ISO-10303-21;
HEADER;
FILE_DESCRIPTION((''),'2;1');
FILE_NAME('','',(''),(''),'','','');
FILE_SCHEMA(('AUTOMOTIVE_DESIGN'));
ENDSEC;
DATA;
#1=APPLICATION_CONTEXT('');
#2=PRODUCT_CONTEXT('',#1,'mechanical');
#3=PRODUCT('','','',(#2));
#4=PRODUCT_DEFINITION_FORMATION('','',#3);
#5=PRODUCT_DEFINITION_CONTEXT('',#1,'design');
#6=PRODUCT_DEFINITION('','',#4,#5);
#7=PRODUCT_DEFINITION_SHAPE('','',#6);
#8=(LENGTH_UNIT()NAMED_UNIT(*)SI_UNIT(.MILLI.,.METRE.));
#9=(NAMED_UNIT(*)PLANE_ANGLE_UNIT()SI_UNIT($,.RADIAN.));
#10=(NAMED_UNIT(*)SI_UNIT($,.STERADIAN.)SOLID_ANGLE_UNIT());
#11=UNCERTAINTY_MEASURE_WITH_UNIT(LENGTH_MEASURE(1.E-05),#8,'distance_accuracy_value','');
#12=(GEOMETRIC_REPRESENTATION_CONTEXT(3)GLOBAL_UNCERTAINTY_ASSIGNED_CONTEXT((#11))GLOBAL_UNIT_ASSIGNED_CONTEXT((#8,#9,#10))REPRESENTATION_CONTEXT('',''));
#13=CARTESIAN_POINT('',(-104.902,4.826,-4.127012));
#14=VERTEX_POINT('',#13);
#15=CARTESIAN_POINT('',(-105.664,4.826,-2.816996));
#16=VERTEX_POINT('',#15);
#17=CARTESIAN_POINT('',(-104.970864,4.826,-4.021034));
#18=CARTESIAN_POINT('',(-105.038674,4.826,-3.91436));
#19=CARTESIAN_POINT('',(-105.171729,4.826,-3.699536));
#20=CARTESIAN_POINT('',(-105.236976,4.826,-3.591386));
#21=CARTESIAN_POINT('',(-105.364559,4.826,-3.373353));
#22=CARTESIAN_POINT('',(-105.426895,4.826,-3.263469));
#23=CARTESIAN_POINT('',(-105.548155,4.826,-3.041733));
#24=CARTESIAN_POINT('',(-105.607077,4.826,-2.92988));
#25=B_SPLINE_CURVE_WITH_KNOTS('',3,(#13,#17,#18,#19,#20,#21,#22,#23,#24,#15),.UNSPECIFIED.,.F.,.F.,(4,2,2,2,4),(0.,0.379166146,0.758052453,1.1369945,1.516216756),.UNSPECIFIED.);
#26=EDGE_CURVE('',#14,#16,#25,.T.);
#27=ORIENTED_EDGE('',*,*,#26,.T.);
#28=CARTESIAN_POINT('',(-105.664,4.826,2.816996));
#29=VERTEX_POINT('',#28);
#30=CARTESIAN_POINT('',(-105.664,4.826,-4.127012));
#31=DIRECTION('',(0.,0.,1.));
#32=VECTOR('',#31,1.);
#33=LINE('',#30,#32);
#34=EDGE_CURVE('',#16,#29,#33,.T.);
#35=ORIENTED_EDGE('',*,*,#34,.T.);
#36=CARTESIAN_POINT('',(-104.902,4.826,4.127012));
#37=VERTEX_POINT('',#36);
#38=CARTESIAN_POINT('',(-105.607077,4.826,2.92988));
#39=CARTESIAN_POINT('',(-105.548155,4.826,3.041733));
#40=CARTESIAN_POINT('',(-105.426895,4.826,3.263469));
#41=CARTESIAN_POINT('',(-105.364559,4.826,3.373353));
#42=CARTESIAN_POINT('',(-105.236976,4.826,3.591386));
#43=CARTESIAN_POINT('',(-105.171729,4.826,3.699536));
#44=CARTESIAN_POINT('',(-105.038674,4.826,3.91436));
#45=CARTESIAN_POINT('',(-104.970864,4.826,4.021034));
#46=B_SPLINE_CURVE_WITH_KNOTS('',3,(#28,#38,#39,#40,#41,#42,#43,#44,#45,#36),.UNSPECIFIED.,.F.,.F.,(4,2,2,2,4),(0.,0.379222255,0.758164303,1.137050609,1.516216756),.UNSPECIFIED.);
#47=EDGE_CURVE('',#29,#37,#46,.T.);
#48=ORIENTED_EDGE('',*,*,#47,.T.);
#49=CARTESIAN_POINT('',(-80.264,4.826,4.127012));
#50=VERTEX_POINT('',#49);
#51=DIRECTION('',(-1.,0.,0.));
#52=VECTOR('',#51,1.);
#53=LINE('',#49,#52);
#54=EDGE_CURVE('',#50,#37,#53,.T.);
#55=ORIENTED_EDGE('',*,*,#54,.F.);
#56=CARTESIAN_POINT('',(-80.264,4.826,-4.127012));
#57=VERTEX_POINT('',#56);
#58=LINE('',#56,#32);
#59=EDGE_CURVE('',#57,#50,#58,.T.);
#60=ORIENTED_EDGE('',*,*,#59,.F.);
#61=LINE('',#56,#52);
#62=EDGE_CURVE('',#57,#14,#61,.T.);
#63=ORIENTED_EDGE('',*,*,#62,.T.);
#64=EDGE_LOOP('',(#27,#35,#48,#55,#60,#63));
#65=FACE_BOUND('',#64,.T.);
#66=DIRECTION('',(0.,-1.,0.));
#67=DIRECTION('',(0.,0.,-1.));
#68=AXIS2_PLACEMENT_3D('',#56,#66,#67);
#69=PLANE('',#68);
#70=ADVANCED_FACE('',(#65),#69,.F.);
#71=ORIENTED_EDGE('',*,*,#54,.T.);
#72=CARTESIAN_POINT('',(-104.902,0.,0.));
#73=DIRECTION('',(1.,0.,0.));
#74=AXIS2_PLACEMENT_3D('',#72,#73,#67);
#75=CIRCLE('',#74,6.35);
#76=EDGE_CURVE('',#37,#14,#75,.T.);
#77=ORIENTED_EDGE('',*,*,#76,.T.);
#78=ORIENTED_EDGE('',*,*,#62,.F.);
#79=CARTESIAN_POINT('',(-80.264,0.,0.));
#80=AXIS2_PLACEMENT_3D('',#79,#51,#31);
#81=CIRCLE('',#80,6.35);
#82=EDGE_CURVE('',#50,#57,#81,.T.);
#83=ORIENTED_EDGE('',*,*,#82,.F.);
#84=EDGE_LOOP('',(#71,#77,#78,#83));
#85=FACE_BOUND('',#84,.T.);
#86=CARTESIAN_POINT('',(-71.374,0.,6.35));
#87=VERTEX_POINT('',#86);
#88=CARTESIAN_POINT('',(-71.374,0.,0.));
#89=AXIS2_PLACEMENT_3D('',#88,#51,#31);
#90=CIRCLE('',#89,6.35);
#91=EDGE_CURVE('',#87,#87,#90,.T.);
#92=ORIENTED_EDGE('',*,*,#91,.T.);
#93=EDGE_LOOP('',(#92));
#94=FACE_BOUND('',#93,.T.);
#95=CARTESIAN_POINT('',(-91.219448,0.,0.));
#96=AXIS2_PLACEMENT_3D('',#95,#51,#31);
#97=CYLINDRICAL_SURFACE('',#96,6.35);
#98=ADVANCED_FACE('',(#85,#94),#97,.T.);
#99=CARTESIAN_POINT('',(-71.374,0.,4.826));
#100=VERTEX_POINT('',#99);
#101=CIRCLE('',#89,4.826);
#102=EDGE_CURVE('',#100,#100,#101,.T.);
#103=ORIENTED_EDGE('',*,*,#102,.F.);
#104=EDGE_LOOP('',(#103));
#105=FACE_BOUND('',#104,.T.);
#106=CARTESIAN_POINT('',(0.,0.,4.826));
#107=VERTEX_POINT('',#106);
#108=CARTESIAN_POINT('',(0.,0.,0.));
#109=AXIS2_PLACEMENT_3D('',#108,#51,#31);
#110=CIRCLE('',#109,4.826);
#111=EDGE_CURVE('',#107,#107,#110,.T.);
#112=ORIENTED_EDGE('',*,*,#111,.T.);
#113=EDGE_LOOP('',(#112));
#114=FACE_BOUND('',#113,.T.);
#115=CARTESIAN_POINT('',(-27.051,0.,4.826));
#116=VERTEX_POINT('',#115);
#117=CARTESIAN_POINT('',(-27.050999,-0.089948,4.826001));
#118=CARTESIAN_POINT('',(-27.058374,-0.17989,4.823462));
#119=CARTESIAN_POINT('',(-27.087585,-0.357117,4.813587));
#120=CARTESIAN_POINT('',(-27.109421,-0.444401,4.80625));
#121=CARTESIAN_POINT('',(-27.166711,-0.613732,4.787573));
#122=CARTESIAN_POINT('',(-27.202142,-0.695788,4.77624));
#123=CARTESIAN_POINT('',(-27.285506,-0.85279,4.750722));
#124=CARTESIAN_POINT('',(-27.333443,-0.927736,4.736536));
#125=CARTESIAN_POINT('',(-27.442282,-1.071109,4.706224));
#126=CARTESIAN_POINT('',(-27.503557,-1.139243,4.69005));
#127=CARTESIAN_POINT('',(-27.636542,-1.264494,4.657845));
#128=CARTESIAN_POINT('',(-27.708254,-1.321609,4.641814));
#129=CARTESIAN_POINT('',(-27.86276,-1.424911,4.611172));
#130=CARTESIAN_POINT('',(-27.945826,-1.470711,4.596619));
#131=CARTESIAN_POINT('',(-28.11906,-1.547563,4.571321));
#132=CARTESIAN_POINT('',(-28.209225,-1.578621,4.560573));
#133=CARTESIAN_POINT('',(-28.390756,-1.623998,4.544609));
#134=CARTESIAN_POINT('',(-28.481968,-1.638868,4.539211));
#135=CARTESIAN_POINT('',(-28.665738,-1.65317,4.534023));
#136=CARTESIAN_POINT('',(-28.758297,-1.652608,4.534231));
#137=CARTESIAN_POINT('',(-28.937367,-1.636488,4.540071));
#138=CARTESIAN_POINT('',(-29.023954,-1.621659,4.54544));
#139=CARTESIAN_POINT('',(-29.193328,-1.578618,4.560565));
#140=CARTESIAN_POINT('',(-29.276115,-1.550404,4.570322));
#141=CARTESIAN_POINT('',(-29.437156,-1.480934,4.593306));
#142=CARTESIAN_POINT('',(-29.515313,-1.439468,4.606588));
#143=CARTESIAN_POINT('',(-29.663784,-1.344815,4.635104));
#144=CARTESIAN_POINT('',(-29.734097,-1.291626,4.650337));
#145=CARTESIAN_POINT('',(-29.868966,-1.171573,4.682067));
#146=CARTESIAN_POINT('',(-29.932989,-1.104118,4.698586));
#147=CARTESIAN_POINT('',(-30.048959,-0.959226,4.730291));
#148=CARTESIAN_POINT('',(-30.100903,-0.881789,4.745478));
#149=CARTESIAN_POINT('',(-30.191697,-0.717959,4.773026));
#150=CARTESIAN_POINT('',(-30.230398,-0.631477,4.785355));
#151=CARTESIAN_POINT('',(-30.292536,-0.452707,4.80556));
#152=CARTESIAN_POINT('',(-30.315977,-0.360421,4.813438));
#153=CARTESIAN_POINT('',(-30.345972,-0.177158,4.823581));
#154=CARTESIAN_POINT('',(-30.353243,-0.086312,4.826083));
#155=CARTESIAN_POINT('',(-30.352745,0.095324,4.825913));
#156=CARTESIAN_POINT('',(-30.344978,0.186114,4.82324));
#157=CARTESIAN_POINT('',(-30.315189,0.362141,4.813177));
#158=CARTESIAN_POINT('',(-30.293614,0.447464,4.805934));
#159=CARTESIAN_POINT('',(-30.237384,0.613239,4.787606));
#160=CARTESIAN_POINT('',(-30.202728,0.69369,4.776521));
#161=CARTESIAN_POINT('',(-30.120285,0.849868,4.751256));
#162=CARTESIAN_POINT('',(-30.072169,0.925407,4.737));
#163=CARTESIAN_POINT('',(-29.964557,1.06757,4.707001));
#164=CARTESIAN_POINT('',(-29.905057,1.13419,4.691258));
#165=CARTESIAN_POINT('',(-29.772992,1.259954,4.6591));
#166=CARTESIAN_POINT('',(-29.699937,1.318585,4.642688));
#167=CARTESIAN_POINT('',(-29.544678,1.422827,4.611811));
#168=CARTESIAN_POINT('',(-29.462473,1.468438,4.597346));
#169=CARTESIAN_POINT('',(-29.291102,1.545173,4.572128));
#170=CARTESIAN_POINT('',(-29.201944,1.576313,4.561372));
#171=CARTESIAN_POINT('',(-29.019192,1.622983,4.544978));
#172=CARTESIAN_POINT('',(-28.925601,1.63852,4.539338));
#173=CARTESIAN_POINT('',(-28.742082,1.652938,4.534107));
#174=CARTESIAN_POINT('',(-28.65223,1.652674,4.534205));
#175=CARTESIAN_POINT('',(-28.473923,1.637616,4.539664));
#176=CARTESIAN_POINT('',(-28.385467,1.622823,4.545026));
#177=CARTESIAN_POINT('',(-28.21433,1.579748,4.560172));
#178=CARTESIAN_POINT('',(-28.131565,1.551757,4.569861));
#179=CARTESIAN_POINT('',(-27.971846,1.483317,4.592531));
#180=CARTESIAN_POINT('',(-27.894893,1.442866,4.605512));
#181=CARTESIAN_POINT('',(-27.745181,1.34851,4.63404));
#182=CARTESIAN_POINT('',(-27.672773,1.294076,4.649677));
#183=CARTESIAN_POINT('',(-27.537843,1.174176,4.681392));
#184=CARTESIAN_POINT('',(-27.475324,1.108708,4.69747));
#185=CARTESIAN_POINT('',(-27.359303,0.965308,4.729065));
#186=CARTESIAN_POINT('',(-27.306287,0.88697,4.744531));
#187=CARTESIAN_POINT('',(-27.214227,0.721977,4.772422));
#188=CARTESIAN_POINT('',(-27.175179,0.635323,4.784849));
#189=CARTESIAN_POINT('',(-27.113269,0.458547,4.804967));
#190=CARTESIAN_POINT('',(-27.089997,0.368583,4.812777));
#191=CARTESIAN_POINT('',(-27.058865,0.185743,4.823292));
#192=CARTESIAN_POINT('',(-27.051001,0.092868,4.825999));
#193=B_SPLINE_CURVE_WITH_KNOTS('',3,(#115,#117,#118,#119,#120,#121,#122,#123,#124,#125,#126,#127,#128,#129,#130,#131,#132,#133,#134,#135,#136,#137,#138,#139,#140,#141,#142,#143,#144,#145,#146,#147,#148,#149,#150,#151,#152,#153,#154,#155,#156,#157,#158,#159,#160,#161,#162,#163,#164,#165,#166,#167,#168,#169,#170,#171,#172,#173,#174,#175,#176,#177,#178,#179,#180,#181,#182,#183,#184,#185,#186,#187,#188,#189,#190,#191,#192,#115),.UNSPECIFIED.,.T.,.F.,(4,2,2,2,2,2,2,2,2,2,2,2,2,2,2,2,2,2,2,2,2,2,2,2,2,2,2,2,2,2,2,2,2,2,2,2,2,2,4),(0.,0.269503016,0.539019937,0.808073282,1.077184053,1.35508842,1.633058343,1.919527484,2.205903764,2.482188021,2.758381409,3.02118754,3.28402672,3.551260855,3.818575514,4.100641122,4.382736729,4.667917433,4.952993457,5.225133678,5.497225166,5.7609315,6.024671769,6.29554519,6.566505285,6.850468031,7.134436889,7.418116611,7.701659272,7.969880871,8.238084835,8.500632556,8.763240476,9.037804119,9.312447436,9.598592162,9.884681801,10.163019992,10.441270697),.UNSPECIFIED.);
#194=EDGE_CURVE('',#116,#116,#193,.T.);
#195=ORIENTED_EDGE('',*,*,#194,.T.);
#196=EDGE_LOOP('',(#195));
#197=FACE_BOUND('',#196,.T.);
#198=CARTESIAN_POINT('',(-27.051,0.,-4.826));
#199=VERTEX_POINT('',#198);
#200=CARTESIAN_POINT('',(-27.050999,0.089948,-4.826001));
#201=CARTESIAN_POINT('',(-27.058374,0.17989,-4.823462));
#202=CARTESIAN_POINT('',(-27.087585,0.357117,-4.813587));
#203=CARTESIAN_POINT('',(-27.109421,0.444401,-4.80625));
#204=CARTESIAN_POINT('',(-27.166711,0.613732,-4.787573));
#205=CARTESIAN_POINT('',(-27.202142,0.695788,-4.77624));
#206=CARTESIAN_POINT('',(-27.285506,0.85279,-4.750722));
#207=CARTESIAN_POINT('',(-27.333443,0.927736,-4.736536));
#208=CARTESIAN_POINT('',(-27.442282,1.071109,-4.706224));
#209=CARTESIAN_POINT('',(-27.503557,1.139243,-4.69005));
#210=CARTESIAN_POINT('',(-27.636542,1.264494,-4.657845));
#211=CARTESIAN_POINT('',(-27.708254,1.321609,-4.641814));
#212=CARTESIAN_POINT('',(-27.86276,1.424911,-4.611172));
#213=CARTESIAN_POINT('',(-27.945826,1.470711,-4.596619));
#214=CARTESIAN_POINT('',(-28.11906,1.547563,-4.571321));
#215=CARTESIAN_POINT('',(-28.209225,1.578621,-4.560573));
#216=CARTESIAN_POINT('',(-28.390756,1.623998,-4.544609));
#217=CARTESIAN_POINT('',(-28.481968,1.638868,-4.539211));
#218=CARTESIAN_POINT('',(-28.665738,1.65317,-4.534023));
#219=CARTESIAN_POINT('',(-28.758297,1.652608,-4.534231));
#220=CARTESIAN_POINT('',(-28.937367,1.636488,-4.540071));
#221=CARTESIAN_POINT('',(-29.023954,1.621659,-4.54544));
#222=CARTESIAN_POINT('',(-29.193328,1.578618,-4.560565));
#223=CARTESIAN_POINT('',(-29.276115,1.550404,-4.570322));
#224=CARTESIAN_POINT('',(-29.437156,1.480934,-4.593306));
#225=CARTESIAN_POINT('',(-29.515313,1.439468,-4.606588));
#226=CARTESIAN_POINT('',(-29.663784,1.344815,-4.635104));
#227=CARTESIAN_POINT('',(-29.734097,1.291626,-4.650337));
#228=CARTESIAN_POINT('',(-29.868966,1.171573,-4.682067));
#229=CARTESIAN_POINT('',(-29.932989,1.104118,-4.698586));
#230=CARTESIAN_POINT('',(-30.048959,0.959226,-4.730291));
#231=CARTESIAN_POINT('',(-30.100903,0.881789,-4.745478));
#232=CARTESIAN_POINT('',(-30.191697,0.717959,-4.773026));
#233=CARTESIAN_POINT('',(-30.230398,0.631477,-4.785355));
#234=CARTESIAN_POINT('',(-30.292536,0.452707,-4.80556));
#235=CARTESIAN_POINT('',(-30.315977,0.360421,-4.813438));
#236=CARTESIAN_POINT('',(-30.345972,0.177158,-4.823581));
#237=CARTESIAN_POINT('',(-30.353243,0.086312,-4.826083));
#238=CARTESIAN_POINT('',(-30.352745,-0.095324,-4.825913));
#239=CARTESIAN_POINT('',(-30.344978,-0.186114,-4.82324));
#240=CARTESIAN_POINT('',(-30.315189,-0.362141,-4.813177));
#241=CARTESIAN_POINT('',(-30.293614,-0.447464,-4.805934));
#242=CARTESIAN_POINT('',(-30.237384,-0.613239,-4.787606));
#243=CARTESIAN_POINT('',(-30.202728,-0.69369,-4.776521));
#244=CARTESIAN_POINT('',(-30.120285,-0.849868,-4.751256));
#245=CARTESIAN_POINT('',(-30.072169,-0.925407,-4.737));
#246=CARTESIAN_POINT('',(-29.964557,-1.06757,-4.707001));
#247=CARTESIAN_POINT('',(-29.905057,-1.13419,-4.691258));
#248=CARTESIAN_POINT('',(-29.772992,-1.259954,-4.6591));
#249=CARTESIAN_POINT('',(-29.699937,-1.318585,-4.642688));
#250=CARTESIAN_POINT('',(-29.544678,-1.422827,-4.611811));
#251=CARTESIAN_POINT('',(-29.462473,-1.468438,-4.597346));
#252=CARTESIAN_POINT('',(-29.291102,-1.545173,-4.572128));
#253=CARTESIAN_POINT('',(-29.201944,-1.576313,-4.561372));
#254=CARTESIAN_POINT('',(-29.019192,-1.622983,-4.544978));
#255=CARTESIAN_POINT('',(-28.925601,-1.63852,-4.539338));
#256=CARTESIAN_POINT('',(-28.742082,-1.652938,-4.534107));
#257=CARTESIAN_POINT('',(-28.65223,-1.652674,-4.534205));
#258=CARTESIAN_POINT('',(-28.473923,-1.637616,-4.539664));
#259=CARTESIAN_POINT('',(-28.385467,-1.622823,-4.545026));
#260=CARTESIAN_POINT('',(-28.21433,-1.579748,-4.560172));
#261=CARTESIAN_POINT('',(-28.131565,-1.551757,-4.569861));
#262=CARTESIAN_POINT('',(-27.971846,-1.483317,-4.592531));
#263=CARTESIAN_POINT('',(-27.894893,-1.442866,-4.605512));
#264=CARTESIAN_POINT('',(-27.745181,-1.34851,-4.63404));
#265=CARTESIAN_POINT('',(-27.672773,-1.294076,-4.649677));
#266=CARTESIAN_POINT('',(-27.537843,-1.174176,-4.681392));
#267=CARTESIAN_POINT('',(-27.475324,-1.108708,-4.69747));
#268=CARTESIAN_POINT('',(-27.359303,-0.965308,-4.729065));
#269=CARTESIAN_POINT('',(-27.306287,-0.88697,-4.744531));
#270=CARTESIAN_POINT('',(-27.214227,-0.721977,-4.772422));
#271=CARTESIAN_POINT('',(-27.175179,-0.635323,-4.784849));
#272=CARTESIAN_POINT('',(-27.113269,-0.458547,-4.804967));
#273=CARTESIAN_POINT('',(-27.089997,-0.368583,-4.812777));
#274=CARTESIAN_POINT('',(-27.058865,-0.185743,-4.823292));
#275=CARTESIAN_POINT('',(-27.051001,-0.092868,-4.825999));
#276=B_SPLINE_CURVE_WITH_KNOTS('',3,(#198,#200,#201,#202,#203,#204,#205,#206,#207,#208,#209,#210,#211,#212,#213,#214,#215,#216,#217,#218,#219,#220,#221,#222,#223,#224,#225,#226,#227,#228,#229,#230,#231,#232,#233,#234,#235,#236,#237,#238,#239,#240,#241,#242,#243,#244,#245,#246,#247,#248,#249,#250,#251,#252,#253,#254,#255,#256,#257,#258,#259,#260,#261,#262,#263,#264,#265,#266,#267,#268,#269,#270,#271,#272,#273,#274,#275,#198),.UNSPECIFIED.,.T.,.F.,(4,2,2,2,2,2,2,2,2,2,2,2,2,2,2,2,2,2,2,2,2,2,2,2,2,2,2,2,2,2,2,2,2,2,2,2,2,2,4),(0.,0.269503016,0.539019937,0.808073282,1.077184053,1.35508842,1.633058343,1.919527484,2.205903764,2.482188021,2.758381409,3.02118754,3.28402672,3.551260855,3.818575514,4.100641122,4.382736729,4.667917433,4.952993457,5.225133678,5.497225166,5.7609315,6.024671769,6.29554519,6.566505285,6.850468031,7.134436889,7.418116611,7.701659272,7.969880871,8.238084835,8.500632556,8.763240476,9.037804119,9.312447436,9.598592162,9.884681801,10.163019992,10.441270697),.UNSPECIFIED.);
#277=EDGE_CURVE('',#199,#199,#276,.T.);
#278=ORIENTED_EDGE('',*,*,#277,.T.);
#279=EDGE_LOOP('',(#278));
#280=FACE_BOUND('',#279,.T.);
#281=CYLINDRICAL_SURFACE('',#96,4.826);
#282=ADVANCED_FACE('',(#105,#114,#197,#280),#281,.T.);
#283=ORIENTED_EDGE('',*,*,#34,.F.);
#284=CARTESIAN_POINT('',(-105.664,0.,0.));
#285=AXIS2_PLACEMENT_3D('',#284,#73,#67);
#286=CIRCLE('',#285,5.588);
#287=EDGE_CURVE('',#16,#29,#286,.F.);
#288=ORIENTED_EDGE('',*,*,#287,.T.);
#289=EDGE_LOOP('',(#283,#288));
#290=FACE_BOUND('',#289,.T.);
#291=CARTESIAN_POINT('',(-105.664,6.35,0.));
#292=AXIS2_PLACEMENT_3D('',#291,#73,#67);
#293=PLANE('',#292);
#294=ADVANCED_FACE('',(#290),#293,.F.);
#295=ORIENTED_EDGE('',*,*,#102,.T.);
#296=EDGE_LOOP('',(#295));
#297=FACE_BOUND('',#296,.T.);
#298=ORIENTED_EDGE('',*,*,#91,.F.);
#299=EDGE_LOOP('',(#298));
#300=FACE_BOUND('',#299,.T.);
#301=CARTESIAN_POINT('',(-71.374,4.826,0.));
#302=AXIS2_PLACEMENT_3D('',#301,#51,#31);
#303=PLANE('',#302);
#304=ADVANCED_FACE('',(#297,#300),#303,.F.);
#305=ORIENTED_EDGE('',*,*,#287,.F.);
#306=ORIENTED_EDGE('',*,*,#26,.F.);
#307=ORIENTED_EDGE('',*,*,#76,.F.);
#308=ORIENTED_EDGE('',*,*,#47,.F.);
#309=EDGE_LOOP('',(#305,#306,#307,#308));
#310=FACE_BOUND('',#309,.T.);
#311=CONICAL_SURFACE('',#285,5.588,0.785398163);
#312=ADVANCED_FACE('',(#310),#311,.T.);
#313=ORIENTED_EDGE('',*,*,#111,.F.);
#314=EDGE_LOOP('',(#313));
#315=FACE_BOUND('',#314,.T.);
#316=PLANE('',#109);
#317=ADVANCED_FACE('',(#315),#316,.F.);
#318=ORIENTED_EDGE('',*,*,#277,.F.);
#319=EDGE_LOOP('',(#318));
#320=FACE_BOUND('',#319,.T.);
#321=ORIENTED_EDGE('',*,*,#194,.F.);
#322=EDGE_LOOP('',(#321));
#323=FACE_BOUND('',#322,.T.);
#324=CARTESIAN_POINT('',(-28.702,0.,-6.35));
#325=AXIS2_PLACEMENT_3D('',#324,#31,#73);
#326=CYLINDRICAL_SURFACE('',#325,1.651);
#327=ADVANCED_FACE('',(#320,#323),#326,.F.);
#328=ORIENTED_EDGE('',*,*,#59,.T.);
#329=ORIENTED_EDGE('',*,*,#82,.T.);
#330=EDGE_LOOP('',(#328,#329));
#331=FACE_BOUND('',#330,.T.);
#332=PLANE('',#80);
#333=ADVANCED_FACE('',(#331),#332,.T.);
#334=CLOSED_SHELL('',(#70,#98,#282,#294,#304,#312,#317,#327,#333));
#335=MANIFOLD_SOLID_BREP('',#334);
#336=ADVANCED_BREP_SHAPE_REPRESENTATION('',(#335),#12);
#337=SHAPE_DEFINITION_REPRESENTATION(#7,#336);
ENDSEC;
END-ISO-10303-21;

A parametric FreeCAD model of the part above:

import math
import FreeCAD as App
import Part
import Sketcher

V = App.Vector
Q = App.Units.Quantity


def edges_at(feature, points):
    """Names of the edges that pass closest to the given points."""
    edges = feature.Shape.Edges
    near = lambda p: min(range(len(edges)), key=lambda i: edges[i].distToShape(Part.Vertex(*p))[0])
    return sorted({f"Edge{near(p) + 1}" for p in points})

doc = App.newDocument("Part")
body = doc.addObject("PartDesign::Body", "Body")

sketch1 = body.newObject("Sketcher::SketchObject", "Sketch")
sketch1.AttachmentSupport = (doc.getObject("XY_Plane"), [""])
sketch1.MapMode = "FlatFace"
sketch1.addGeometry([
    Part.LineSegment(V(0, 0, 0), V(0, 4.8, 0)),
    Part.LineSegment(V(0, 4.8, 0), V(-71.4, 4.8, 0)),
    Part.LineSegment(V(-71.4, 4.8, 0), V(-71.4, 6.3, 0)),
    Part.LineSegment(V(-71.4, 6.3, 0), V(-105.7, 6.3, 0)),
    Part.LineSegment(V(-105.7, 6.3, 0), V(-105.7, 0, 0)),
    Part.LineSegment(V(-105.7, 0, 0), V(0, 0, 0)),
], False)
sketch1.addConstraint([
    Sketcher.Constraint("Coincident", 0, 2, 1, 1),
    Sketcher.Constraint("Coincident", 1, 2, 2, 1),
    Sketcher.Constraint("Coincident", 2, 2, 3, 1),
    Sketcher.Constraint("Coincident", 3, 2, 4, 1),
    Sketcher.Constraint("Coincident", 4, 2, 5, 1),
    Sketcher.Constraint("Coincident", 5, 2, 0, 1),
    Sketcher.Constraint("Vertical", 0),
    Sketcher.Constraint("Horizontal", 1),
    Sketcher.Constraint("Vertical", 2),
    Sketcher.Constraint("Horizontal", 3),
    Sketcher.Constraint("Vertical", 4),
    Sketcher.Constraint("Horizontal", 5),
    Sketcher.Constraint("Coincident", 5, 2, -1, 1),
    Sketcher.Constraint("DistanceX", 1, 2, 1, 1, Q("2.81 in")),
    Sketcher.Constraint("DistanceX", 3, 2, 3, 1, Q("1.35 in")),
    Sketcher.Constraint("DistanceY", 0, 1, 0, 2, Q("0.19 in")),
    Sketcher.Constraint("DistanceY", 2, 1, 2, 2, Q("0.06 in")),
])
revolution = body.newObject("PartDesign::Revolution", "Revolution")
revolution.Profile = sketch1
revolution.ReferenceAxis = (sketch1, ["H_Axis"])
revolution.Angle = 360

sketch2 = body.newObject("Sketcher::SketchObject", "Sketch001")
sketch2.AttachmentSupport = (doc.getObject("XY_Plane"), [""])
sketch2.MapMode = "FlatFace"
sketch2.addGeometry(Part.Circle(V(-28.7, 0, 0), V(0, 0, 1), 1.7), False)
sketch2.addConstraint([
    Sketcher.Constraint("PointOnObject", 0, 3, -1),
    Sketcher.Constraint("Diameter", 0, Q("0.13 in")),
    Sketcher.Constraint("DistanceX", 0, 3, -1, 1, Q("1.13 in")),
])
pocket1 = body.newObject("PartDesign::Pocket", "Pocket")
pocket1.Profile = sketch2
pocket1.Type = "ThroughAll"
pocket1.Midplane = True

sketch3 = body.newObject("Sketcher::SketchObject", "Sketch002")
sketch3.AttachmentSupport = (doc.getObject("YZ_Plane"), [""])
sketch3.MapMode = "FlatFace"
sketch3.AttachmentOffset = App.Placement(V(0, 0, -4.16 * 25.4), App.Rotation())
sketch3.addGeometry([
    Part.LineSegment(V(5, -4, 0), V(5, 4, 0)),
    Part.ArcOfCircle(Part.Circle(V(0, 0, 0), V(0, 0, 1), 6), math.radians(-41), math.radians(41)),
], False)
sketch3.addConstraint([
    Sketcher.Constraint("Coincident", 0, 1, 1, 1),
    Sketcher.Constraint("Coincident", 1, 2, 0, 2),
    Sketcher.Constraint("Vertical", 0),
    Sketcher.Constraint("Coincident", 1, 3, -1, 1),
    Sketcher.Constraint("Radius", 1, Q("0.25 in")),
    Sketcher.Constraint("DistanceX", -1, 1, 0, 1, Q("0.19 in")),
])
pocket2 = body.newObject("PartDesign::Pocket", "Pocket001")
pocket2.Profile = sketch3
pocket2.Length = Q("1 in")
pocket2.Reversed = True
doc.recompute()

chamfer = body.newObject("PartDesign::Chamfer", "Chamfer")
chamfer.Base = (pocket2, edges_at(pocket2, [(-105.664, -5.768, -2.657)]))
chamfer.Size = Q("0.03 in")

doc.recompute()
